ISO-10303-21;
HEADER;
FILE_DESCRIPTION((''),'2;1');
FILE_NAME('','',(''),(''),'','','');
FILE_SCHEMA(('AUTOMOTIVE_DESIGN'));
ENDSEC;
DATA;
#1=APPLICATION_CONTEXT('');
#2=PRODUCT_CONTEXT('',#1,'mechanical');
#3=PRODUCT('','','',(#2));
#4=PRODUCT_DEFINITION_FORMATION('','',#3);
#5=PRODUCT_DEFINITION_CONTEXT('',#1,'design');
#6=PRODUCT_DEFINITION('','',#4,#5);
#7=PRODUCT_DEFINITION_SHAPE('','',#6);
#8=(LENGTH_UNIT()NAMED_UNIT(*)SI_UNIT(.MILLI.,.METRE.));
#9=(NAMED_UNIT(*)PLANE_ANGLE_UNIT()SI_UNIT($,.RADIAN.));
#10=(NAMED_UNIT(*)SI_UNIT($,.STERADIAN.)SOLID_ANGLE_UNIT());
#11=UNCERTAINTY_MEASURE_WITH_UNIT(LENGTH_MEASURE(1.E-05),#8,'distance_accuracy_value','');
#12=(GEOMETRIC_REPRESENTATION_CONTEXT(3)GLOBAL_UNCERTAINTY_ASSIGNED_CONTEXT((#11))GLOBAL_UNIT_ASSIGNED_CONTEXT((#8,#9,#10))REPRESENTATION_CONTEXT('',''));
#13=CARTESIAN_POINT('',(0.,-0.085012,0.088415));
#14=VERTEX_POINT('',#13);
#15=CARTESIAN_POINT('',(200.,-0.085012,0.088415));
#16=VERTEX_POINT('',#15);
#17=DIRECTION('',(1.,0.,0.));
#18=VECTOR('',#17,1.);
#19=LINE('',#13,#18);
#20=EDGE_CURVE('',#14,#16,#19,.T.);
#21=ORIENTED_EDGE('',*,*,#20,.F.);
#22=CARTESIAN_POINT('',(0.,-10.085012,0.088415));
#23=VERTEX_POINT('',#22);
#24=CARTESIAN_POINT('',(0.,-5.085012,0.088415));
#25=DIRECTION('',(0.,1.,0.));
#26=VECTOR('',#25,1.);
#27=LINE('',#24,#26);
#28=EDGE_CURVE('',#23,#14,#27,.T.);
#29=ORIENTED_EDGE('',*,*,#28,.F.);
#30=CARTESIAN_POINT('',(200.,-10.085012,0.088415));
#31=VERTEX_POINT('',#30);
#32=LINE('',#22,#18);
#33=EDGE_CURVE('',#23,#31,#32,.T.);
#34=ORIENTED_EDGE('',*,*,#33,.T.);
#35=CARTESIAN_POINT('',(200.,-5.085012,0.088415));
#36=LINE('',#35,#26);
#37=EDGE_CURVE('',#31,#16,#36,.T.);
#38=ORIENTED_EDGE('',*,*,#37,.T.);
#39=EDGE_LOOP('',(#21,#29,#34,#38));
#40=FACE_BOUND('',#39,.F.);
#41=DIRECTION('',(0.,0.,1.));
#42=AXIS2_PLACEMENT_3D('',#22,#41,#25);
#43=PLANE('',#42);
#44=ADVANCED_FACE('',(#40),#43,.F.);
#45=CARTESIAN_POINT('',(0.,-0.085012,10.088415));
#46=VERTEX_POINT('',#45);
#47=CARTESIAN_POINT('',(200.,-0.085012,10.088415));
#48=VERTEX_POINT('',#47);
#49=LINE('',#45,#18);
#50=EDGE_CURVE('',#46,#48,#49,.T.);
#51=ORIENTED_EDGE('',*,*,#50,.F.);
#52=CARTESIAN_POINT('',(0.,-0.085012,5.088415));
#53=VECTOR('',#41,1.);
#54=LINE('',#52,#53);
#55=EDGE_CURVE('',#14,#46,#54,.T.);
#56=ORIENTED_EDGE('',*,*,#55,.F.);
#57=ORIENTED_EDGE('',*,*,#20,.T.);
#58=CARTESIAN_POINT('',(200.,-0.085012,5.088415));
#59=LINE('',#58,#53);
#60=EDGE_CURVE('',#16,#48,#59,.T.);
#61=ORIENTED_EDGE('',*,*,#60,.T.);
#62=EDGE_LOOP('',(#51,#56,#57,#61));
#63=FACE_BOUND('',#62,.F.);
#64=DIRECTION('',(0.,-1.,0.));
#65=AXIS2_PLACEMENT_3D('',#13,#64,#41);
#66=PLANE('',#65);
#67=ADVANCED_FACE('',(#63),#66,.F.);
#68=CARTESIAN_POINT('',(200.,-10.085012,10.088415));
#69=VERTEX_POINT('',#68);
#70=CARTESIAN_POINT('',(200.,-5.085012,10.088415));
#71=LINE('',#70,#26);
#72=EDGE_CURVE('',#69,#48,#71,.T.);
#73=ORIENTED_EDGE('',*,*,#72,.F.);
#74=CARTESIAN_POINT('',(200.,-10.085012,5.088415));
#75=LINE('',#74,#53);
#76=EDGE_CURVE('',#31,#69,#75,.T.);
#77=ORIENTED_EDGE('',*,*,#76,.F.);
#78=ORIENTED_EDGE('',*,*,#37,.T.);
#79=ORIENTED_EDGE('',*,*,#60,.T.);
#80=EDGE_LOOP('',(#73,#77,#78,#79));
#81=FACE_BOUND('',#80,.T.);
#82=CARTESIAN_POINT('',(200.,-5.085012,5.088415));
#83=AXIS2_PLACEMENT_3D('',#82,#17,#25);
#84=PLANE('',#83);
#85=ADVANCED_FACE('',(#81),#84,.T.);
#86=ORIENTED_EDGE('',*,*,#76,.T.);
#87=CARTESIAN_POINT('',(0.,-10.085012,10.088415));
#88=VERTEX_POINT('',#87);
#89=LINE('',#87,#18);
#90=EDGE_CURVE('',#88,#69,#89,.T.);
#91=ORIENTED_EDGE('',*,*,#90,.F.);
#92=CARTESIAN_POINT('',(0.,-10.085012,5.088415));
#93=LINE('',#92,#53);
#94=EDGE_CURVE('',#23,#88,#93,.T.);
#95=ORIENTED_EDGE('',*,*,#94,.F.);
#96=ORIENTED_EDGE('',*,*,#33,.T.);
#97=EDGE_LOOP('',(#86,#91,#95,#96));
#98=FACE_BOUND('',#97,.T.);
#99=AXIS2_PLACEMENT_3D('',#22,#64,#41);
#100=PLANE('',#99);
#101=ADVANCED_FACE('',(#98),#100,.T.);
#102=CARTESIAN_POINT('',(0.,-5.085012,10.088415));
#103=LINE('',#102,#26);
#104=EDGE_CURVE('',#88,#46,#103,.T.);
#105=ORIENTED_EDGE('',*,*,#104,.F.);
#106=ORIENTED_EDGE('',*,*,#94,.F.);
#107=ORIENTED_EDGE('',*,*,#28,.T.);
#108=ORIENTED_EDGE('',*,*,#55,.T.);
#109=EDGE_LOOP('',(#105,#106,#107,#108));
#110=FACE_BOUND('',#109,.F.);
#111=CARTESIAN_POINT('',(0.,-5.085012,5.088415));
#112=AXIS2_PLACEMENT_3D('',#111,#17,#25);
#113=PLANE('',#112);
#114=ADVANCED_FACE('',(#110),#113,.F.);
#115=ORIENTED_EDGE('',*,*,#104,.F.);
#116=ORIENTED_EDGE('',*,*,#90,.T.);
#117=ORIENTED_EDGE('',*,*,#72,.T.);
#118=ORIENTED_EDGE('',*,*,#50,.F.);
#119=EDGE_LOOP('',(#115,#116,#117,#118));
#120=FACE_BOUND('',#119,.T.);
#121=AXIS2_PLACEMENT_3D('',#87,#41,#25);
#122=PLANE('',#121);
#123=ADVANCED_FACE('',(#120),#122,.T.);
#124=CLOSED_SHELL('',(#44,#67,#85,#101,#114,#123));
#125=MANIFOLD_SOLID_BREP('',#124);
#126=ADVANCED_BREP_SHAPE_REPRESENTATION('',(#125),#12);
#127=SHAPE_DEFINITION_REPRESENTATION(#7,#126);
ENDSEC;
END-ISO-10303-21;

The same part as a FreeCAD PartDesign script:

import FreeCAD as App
import Part
import Sketcher

V = App.Vector
Q = App.Units.Quantity

doc = App.newDocument("Part")
params = doc.addObject("Spreadsheet::Sheet", "Params")
for row, (alias, value) in enumerate([
    ("sketch1_width", "10 mm"),
    ("pad1_length", "200 mm"),
], start=1):
    params.set(f"A{row}", alias)
    params.set(f"B{row}", "=" + value)
    params.setAlias(f"B{row}", alias)

body = doc.addObject("PartDesign::Body", "Body")

sketch1 = body.newObject("Sketcher::SketchObject", "Sketch")
sketch1.AttachmentSupport = (doc.getObject("YZ_Plane"), [""])
sketch1.MapMode = "FlatFace"
sketch1.addGeometry([
    Part.LineSegment(V(-10, 10, 0), V(-10, 0, 0)),
    Part.LineSegment(V(-10, 0, 0), V(0, 0, 0)),
    Part.LineSegment(V(0, 0, 0), V(0, 10, 0)),
    Part.LineSegment(V(0, 10, 0), V(-10, 10, 0)),
], False)
sketch1.addConstraint([
    Sketcher.Constraint("Coincident", 0, 2, 1, 1),
    Sketcher.Constraint("Coincident", 1, 2, 2, 1),
    Sketcher.Constraint("Coincident", 2, 2, 3, 1),
    Sketcher.Constraint("Coincident", 3, 2, 0, 1),
    Sketcher.Constraint("Vertical", 0),
    Sketcher.Constraint("Horizontal", 1),
    Sketcher.Constraint("Vertical", 2),
    Sketcher.Constraint("Horizontal", 3),
    Sketcher.Constraint("Equal", 3, 0),
    Sketcher.Constraint("DistanceX", 1, 1, 1, 2, Q("10 mm")),
    Sketcher.Constraint("DistanceX", 0, 2, -1, 1, Q("10.085012 mm")),
    Sketcher.Constraint("DistanceY", -1, 1, 0, 2, Q("0.088415 mm")),
])
sketch1.setExpression("Constraints[9]", "Params.sketch1_width")
pad1 = body.newObject("PartDesign::Pad", "Pad")
pad1.Profile = sketch1
pad1.setExpression("Length", "Params.pad1_length")

doc.recompute()
